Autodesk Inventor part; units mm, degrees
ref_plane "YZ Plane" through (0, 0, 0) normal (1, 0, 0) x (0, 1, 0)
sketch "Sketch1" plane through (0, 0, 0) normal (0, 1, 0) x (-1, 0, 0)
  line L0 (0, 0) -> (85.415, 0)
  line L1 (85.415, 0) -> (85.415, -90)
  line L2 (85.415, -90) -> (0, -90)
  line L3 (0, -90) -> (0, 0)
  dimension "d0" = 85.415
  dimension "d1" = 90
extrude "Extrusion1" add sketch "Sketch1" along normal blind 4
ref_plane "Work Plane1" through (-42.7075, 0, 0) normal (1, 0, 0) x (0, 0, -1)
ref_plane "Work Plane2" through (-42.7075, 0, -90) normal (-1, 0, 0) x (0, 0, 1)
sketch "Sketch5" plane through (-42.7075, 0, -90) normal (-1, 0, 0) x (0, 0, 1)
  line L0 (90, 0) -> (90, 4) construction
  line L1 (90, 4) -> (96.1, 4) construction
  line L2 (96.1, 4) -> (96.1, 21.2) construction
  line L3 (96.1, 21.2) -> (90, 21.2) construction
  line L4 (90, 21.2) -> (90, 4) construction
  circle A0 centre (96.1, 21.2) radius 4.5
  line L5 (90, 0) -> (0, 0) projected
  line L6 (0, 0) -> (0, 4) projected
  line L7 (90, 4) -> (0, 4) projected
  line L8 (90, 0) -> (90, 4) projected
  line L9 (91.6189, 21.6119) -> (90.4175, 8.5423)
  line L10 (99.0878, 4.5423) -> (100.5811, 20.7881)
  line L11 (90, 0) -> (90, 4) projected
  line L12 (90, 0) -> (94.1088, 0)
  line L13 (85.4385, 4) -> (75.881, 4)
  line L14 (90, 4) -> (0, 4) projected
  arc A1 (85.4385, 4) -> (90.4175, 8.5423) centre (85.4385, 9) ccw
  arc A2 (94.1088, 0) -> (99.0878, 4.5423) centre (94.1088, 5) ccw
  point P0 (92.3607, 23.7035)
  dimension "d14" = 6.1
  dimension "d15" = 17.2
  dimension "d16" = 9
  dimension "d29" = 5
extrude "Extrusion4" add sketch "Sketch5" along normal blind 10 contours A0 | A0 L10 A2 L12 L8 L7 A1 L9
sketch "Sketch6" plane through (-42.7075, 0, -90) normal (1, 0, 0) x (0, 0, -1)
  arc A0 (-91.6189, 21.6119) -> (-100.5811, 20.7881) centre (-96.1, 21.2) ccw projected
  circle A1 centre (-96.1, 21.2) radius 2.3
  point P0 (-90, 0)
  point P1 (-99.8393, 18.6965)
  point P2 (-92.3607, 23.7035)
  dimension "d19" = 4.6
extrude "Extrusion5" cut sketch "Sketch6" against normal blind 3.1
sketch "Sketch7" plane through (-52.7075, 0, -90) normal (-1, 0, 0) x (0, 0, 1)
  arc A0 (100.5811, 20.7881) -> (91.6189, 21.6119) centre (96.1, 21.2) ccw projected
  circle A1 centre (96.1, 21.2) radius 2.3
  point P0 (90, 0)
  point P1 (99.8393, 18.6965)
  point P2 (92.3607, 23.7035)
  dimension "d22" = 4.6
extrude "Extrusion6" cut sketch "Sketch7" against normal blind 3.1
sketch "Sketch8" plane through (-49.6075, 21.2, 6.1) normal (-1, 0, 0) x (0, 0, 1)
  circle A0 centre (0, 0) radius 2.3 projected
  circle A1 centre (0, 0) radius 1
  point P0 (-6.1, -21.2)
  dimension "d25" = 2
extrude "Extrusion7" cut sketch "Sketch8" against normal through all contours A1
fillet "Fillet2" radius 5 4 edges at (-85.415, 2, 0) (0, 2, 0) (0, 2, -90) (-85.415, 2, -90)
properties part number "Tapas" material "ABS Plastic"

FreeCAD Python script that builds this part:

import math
import FreeCAD as App
import Part
import Sketcher

V = App.Vector


def edges_at(feature, points):
    """Names of the edges that pass closest to the given points."""
    edges = feature.Shape.Edges
    near = lambda p: min(range(len(edges)), key=lambda i: edges[i].distToShape(Part.Vertex(*p))[0])
    return sorted({f"Edge{near(p) + 1}" for p in points})


def add_polygon(sketch, points):
    """Adds a closed chain of lines whose ends are joined by coincident constraints."""
    first, n = sketch.GeometryCount, len(points)
    for a, b in zip(points, points[1:] + points[:1]):
        sketch.addGeometry(Part.LineSegment(App.Vector(*a, 0), App.Vector(*b, 0)), False)
    for i in range(n):
        sketch.addConstraint(Sketcher.Constraint("Coincident", first + i, 2, first + (i + 1) % n, 1))

doc = App.newDocument("Part")
body = doc.addObject("PartDesign::Body", "Body")

# Sketch on XZ plane
sketch1 = body.newObject("Sketcher::SketchObject", "Sketch")
sketch1.AttachmentSupport = (doc.getObject("XZ_Plane"), [""])
sketch1.MapMode = "FlatFace"
add_polygon(sketch1, [(-85, 0), (0, 0), (0, -90), (-85, -90)])  # lines 0-3
sketch1.addConstraint(Sketcher.Constraint("Horizontal", 0))
sketch1.addConstraint(Sketcher.Constraint("Vertical", 1))
sketch1.addConstraint(Sketcher.Constraint("Horizontal", 2))
sketch1.addConstraint(Sketcher.Constraint("Vertical", 3))
sketch1.addConstraint(Sketcher.Constraint("Coincident", 0, 2, -1, 1))
sketch1.addConstraint(Sketcher.Constraint("DistanceY", 1, 2, 1, 1, 90.0))
sketch1.addConstraint(Sketcher.Constraint("DistanceX", 0, 1, 0, 2, 85.415))
pad1 = body.newObject("PartDesign::Pad", "Pad")
pad1.Profile = sketch1
pad1.Length = 4
pad1.Reversed = True

# Sketch on YZ plane
sketch2 = body.newObject("Sketcher::SketchObject", "Sketch001")
sketch2.AttachmentSupport = (doc.getObject("YZ_Plane"), [""])
sketch2.MapMode = "FlatFace"
sketch2.AttachmentOffset = App.Placement(V(0, 0, -42.7075), App.Rotation())
sketch2.addGeometry(Part.ArcOfCircle(Part.Circle(V(21.2, 6.1, 0), V(0, 0, 1), 4.5), math.radians(-85), math.radians(95)), False)
sketch2.addGeometry(Part.LineSegment(V(21.6, 1.6, 0), V(8.5, 0.4, 0)), False)
sketch2.addGeometry(Part.ArcOfCircle(Part.Circle(V(9, -4.6, 0), V(0, 0, 1), 5), math.radians(95), math.radians(180)), False)
sketch2.addGeometry(Part.LineSegment(V(4, -4.6, 0), V(4, 0, 0)), False)
sketch2.addGeometry(Part.LineSegment(V(4, 0, 0), V(0, 0, 0)), False)
sketch2.addGeometry(Part.LineSegment(V(0, 0, 0), V(0, 4.1, 0)), False)
sketch2.addGeometry(Part.ArcOfCircle(Part.Circle(V(5, 4.1, 0), V(0, 0, 1), 5), math.radians(95), math.radians(180)), False)
sketch2.addGeometry(Part.LineSegment(V(4.5, 9.1, 0), V(20.8, 10.6, 0)), False)
sketch2.addConstraint(Sketcher.Constraint("Tangent", 0, 1, 1, 1))
sketch2.addConstraint(Sketcher.Constraint("Tangent", 1, 2, 2, 1))
sketch2.addConstraint(Sketcher.Constraint("Tangent", 2, 2, 3, 1))
sketch2.addConstraint(Sketcher.Constraint("Coincident", 3, 2, 4, 1))
sketch2.addConstraint(Sketcher.Constraint("Coincident", 4, 2, 5, 1))
sketch2.addConstraint(Sketcher.Constraint("Tangent", 5, 2, 6, 2))
sketch2.addConstraint(Sketcher.Constraint("Tangent", 6, 1, 7, 1))
sketch2.addConstraint(Sketcher.Constraint("Tangent", 7, 2, 0, 2))
sketch2.addConstraint(Sketcher.Constraint("Vertical", 3))
sketch2.addConstraint(Sketcher.Constraint("Horizontal", 4))
sketch2.addConstraint(Sketcher.Constraint("Vertical", 5))
sketch2.addConstraint(Sketcher.Constraint("Coincident", 4, 2, -1, 1))
sketch2.addConstraint(Sketcher.Constraint("Equal", 2, 6))
sketch2.addConstraint(Sketcher.Constraint("Parallel", 1, 7))
sketch2.addConstraint(Sketcher.Constraint("Radius", 2, 5.0))
sketch2.addConstraint(Sketcher.Constraint("Radius", 0, 4.5))
sketch2.addConstraint(Sketcher.Constraint("DistanceX", -1, 1, 2, 3, 9.0))
sketch2.addConstraint(Sketcher.Constraint("DistanceY", -1, 1, 0, 3, 6.1))
sketch2.addConstraint(Sketcher.Constraint("DistanceX", 2, 2, 0, 3, 17.2))
sketch2.addConstraint(Sketcher.Constraint("DistanceY", 0, 1, 6, 3, 2.49))
pad2 = body.newObject("PartDesign::Pad", "Pad001")
pad2.Profile = sketch2
pad2.Length = 10
pad2.Reversed = True

# Sketch on YZ plane
sketch3 = body.newObject("Sketcher::SketchObject", "Sketch002")
sketch3.AttachmentSupport = (doc.getObject("YZ_Plane"), [""])
sketch3.MapMode = "FlatFace"
sketch3.AttachmentOffset = App.Placement(V(0, 0, -42.7075), App.Rotation())
sketch3.addGeometry(Part.Circle(V(21.2, 6.1, 0), V(0, 0, 1), 2.3), False)
sketch3.addConstraint(Sketcher.Constraint("Diameter", 0, 4.6))
sketch3.addConstraint(Sketcher.Constraint("DistanceX", -1, 1, 0, 3, 21.2))
sketch3.addConstraint(Sketcher.Constraint("DistanceY", -1, 1, 0, 3, 6.1))
pocket1 = body.newObject("PartDesign::Pocket", "Pocket")
pocket1.Profile = sketch3
pocket1.Length = 3.1

# Sketch on YZ plane
sketch4 = body.newObject("Sketcher::SketchObject", "Sketch003")
sketch4.AttachmentSupport = (doc.getObject("YZ_Plane"), [""])
sketch4.MapMode = "FlatFace"
sketch4.AttachmentOffset = App.Placement(V(0, 0, -52.7075), App.Rotation())
sketch4.addGeometry(Part.Circle(V(21.2, 6.1, 0), V(0, 0, 1), 2.3), False)
sketch4.addConstraint(Sketcher.Constraint("Diameter", 0, 4.6))
sketch4.addConstraint(Sketcher.Constraint("DistanceX", -1, 1, 0, 3, 21.2))
sketch4.addConstraint(Sketcher.Constraint("DistanceY", -1, 1, 0, 3, 6.1))
pocket2 = body.newObject("PartDesign::Pocket", "Pocket001")
pocket2.Profile = sketch4
pocket2.Length = 3.1
pocket2.Reversed = True

# Sketch on YZ plane
sketch5 = body.newObject("Sketcher::SketchObject", "Sketch004")
sketch5.AttachmentSupport = (doc.getObject("YZ_Plane"), [""])
sketch5.MapMode = "FlatFace"
sketch5.AttachmentOffset = App.Placement(V(0, 0, -49.6075), App.Rotation())
sketch5.addGeometry(Part.Circle(V(21.2, 6.1, 0), V(0, 0, 1), 1), False)
sketch5.addConstraint(Sketcher.Constraint("Diameter", 0, 2.0))
sketch5.addConstraint(Sketcher.Constraint("DistanceX", -1, 1, 0, 3, 21.2))
sketch5.addConstraint(Sketcher.Constraint("DistanceY", -1, 1, 0, 3, 6.1))
pocket3 = body.newObject("PartDesign::Pocket", "Pocket002")
pocket3.Profile = sketch5
pocket3.Type = "ThroughAll"
pocket3.Reversed = True
doc.recompute()

fillet = body.newObject("PartDesign::Fillet", "Fillet")
fillet.Base = (pocket3, edges_at(pocket3, [
    (-85.415, 2, 0),
    (0, 2, 0),
    (0, 2, -90),
    (-85.415, 2, -90),
]))
fillet.Radius = 5

doc.recompute()
